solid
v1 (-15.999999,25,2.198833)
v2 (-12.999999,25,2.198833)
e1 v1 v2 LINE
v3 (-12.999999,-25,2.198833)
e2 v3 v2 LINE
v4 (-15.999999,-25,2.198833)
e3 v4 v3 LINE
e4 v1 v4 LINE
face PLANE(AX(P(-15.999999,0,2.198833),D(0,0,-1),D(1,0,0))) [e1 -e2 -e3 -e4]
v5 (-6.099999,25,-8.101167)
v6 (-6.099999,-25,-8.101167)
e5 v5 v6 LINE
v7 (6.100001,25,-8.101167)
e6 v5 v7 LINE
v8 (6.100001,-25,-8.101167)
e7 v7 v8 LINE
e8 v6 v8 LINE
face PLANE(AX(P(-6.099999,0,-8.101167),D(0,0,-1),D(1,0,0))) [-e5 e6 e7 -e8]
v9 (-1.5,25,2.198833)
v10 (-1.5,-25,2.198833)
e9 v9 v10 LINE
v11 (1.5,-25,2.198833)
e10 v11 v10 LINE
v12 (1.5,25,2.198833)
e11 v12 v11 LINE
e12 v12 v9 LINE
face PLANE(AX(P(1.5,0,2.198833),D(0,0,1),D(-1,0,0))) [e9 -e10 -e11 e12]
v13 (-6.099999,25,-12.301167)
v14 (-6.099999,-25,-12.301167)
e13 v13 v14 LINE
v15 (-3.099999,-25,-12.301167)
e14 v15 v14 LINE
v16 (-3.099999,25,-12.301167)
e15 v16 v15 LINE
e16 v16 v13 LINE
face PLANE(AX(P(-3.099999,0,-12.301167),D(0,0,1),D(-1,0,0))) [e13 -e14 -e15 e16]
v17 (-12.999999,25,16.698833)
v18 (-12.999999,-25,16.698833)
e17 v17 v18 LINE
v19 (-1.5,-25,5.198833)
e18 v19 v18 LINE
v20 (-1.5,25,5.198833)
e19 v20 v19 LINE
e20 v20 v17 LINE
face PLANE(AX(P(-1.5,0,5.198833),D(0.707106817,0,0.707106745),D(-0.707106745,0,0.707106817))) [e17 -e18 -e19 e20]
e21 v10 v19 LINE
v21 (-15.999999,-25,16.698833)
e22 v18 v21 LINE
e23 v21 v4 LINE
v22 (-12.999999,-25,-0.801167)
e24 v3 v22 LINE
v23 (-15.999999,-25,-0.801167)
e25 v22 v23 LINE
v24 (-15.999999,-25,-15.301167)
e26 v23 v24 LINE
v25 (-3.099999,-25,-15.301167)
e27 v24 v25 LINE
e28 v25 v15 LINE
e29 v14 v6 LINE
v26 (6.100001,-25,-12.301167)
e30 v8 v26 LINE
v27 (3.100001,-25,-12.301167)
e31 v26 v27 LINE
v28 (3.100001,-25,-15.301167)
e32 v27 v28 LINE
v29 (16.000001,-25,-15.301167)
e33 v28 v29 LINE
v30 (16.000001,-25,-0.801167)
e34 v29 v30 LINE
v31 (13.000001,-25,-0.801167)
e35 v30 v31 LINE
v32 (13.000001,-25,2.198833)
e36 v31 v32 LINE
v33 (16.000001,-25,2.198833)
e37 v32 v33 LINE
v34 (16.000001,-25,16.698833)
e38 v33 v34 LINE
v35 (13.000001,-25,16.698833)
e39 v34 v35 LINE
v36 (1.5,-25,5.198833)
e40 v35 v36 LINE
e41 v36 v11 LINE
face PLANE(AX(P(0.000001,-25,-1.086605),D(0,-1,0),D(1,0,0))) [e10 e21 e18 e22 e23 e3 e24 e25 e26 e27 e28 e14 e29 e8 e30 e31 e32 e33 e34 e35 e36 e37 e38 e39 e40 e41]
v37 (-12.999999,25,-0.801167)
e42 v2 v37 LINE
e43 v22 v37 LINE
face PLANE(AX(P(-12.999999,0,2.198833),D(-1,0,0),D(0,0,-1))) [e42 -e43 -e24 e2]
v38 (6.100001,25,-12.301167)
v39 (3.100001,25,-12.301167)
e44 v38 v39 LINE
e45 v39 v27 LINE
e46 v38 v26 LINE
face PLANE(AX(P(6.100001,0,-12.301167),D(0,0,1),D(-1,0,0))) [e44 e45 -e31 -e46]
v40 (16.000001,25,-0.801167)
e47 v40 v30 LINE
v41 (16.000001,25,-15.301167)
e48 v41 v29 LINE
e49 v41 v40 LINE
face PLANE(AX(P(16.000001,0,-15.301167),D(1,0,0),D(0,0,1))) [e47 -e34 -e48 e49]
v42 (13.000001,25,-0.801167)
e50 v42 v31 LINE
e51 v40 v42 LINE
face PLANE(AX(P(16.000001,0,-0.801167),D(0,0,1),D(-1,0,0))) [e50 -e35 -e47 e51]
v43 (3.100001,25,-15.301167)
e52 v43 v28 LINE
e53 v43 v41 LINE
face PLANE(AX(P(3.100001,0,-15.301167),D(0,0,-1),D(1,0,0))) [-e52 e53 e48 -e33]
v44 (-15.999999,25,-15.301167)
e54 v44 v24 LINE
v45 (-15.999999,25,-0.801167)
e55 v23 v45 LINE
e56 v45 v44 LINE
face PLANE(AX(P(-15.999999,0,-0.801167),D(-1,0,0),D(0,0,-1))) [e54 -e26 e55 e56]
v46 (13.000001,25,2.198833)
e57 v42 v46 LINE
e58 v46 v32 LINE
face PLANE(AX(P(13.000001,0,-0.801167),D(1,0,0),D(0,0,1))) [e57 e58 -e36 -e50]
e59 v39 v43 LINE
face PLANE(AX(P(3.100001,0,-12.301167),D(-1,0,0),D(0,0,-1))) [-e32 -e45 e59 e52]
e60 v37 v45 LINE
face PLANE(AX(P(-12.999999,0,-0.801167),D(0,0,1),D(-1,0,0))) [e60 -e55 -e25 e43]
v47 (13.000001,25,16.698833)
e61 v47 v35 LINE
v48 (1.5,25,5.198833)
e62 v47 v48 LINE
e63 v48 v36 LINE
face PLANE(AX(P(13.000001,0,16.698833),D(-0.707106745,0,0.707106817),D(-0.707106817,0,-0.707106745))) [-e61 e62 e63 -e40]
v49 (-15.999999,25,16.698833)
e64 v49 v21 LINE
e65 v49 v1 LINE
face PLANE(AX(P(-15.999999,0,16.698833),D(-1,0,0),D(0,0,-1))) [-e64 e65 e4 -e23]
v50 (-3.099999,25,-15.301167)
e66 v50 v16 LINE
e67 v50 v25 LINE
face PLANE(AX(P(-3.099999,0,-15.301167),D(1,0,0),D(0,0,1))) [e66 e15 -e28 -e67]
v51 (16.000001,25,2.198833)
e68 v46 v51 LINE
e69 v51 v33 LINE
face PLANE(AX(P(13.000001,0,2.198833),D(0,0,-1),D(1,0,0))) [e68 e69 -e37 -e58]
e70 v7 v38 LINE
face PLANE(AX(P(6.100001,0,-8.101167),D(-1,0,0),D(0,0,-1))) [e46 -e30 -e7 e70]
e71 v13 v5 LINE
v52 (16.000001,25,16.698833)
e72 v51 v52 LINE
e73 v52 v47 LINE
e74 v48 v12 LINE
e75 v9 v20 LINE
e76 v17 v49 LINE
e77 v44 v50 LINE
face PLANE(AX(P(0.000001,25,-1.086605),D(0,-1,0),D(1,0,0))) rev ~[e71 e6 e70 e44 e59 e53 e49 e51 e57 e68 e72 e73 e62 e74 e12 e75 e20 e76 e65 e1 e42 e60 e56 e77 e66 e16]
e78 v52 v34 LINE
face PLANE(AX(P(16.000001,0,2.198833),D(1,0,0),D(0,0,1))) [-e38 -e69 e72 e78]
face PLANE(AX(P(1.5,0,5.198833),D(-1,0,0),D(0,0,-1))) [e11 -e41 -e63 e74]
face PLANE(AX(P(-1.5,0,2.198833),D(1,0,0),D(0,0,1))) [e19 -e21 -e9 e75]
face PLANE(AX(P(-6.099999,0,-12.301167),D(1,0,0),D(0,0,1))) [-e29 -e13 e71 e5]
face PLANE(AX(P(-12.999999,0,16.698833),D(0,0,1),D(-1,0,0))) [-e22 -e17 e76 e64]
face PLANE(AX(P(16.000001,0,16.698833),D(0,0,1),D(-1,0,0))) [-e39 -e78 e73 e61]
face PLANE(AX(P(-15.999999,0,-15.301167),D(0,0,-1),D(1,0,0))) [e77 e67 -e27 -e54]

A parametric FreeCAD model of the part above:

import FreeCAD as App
import Part
import Sketcher
Q = App.Units.Quantity

doc = App.newDocument("Part")
body = doc.addObject("PartDesign::Body", "Body")

# Sketch on XZ plane
sketch1 = body.newObject("Sketcher::SketchObject", "Sketch")
sketch1.AttachmentSupport = (doc.getObject("XZ_Plane"), [""])
sketch1.MapMode = "FlatFace"
sketch1.addGeometry([
    Part.LineSegment(App.Vector(-15.999999, -0.801167, 0), App.Vector(-15.999999, -15.301167, 0)),  # 0
    Part.LineSegment(App.Vector(-15.999999, -15.301167, 0), App.Vector(-3.099999, -15.301167, 0)),  # 1
    Part.LineSegment(App.Vector(-3.099999, -15.301167, 0), App.Vector(-3.099999, -12.301167, 0)),  # 2
    Part.LineSegment(App.Vector(-3.099999, -12.301167, 0), App.Vector(-6.099999, -12.301167, 0)),  # 3
    Part.LineSegment(App.Vector(-6.099999, -12.301167, 0), App.Vector(-6.099999, -8.101167, 0)),  # 4
    Part.LineSegment(App.Vector(-6.099999, -8.101167, 0), App.Vector(6.100001, -8.101167, 0)),  # 5
    Part.LineSegment(App.Vector(6.100001, -8.101167, 0), App.Vector(6.100001, -12.301167, 0)),  # 6
    Part.LineSegment(App.Vector(6.100001, -12.301167, 0), App.Vector(3.100001, -12.301167, 0)),  # 7
    Part.LineSegment(App.Vector(3.100001, -12.301167, 0), App.Vector(3.100001, -15.301167, 0)),  # 8
    Part.LineSegment(App.Vector(3.100001, -15.301167, 0), App.Vector(16.000001, -15.301167, 0)),  # 9
    Part.LineSegment(App.Vector(16.000001, -15.301167, 0), App.Vector(16.000001, -0.801167, 0)),  # 10
    Part.LineSegment(App.Vector(16.000001, -0.801167, 0), App.Vector(13.000001, -0.801167, 0)),  # 11
    Part.LineSegment(App.Vector(13.000001, -0.801167, 0), App.Vector(13.000001, 2.198833, 0)),  # 12
    Part.LineSegment(App.Vector(13.000001, 2.198833, 0), App.Vector(16.000001, 2.198833, 0)),  # 13
    Part.LineSegment(App.Vector(16.000001, 2.198833, 0), App.Vector(16.000001, 16.698833, 0)),  # 14
    Part.LineSegment(App.Vector(16.000001, 16.698833, 0), App.Vector(13.000001, 16.698833, 0)),  # 15
    Part.LineSegment(App.Vector(13.000001, 16.698833, 0), App.Vector(1.5, 5.198833, 0)),  # 16
    Part.LineSegment(App.Vector(1.5, 5.198833, 0), App.Vector(1.5, 2.198833, 0)),  # 17
    Part.LineSegment(App.Vector(1.5, 2.198833, 0), App.Vector(-1.5, 2.198833, 0)),  # 18
    Part.LineSegment(App.Vector(-1.5, 2.198833, 0), App.Vector(-1.5, 5.198833, 0)),  # 19
    Part.LineSegment(App.Vector(-1.5, 5.198833, 0), App.Vector(-12.999999, 16.698833, 0)),  # 20
    Part.LineSegment(App.Vector(-12.999999, 16.698833, 0), App.Vector(-15.999999, 16.698833, 0)),  # 21
    Part.LineSegment(App.Vector(-15.999999, 16.698833, 0), App.Vector(-15.999999, 2.198833, 0)),  # 22
    Part.LineSegment(App.Vector(-15.999999, 2.198833, 0), App.Vector(-12.999999, 2.198833, 0)),  # 23
    Part.LineSegment(App.Vector(-12.999999, 2.198833, 0), App.Vector(-12.999999, -0.801167, 0)),  # 24
    Part.LineSegment(App.Vector(-12.999999, -0.801167, 0), App.Vector(-15.999999, -0.801167, 0)),  # 25
], False)
sketch1.addConstraint([
    Sketcher.Constraint("Coincident", 0, 2, 1, 1),
    Sketcher.Constraint("Coincident", 1, 2, 2, 1),
    Sketcher.Constraint("Coincident", 2, 2, 3, 1),
    Sketcher.Constraint("Coincident", 3, 2, 4, 1),
    Sketcher.Constraint("Coincident", 4, 2, 5, 1),
    Sketcher.Constraint("Coincident", 5, 2, 6, 1),
    Sketcher.Constraint("Coincident", 6, 2, 7, 1),
    Sketcher.Constraint("Coincident", 7, 2, 8, 1),
    Sketcher.Constraint("Coincident", 8, 2, 9, 1),
    Sketcher.Constraint("Coincident", 9, 2, 10, 1),
    Sketcher.Constraint("Coincident", 10, 2, 11, 1),
    Sketcher.Constraint("Coincident", 11, 2, 12, 1),
    Sketcher.Constraint("Coincident", 12, 2, 13, 1),
    Sketcher.Constraint("Coincident", 13, 2, 14, 1),
    Sketcher.Constraint("Coincident", 14, 2, 15, 1),
    Sketcher.Constraint("Coincident", 15, 2, 16, 1),
    Sketcher.Constraint("Coincident", 16, 2, 17, 1),
    Sketcher.Constraint("Coincident", 17, 2, 18, 1),
    Sketcher.Constraint("Coincident", 18, 2, 19, 1),
    Sketcher.Constraint("Coincident", 19, 2, 20, 1),
    Sketcher.Constraint("Coincident", 20, 2, 21, 1),
    Sketcher.Constraint("Coincident", 21, 2, 22, 1),
    Sketcher.Constraint("Coincident", 22, 2, 23, 1),
    Sketcher.Constraint("Coincident", 23, 2, 24, 1),
    Sketcher.Constraint("Coincident", 24, 2, 25, 1),
    Sketcher.Constraint("Coincident", 25, 2, 0, 1),
    Sketcher.Constraint("Vertical", 0),
    Sketcher.Constraint("Horizontal", 1),
    Sketcher.Constraint("Vertical", 2),
    Sketcher.Constraint("Horizontal", 3),
    Sketcher.Constraint("Vertical", 4),
    Sketcher.Constraint("Horizontal", 5),
    Sketcher.Constraint("Vertical", 6),
    Sketcher.Constraint("Horizontal", 7),
    Sketcher.Constraint("Vertical", 8),
    Sketcher.Constraint("Horizontal", 9),
    Sketcher.Constraint("Vertical", 10),
    Sketcher.Constraint("Horizontal", 11),
    Sketcher.Constraint("Vertical", 12),
    Sketcher.Constraint("Horizontal", 13),
    Sketcher.Constraint("Vertical", 14),
    Sketcher.Constraint("Horizontal", 15),
    Sketcher.Constraint("Vertical", 17),
    Sketcher.Constraint("Horizontal", 18),
    Sketcher.Constraint("Vertical", 19),
    Sketcher.Constraint("Horizontal", 21),
    Sketcher.Constraint("Vertical", 22),
    Sketcher.Constraint("Horizontal", 23),
    Sketcher.Constraint("Vertical", 24),
    Sketcher.Constraint("Horizontal", 25),
    Sketcher.Constraint("Symmetric", 3, 2, 6, 2, -2),
    Sketcher.Constraint("Symmetric", 1, 2, 8, 2, -2),
    Sketcher.Constraint("Symmetric", 16, 2, 19, 2, -2),
    Sketcher.Constraint("Symmetric", 15, 2, 20, 2, -2),
    Sketcher.Constraint("Symmetric", 13, 2, 22, 2, -2),
    Sketcher.Constraint("Symmetric", 11, 2, 24, 2, -2),
    Sketcher.Constraint("Perpendicular", 16, 20),
    Sketcher.Constraint("Horizontal", 13, 2, 17, 2),
    Sketcher.Constraint("Vertical", 10, 2, 13, 2),
    Sketcher.Constraint("Vertical", 12, 2, 15, 2),
    Sketcher.Constraint("Vertical", 0, 2, 21, 2),
    Sketcher.Constraint("Equal", 7, 11),
    Sketcher.Constraint("Equal", 15, 18),
    Sketcher.Constraint("Equal", 25, 2),
    Sketcher.Constraint("Equal", 8, 12),
    Sketcher.Constraint("Equal", 10, 14),
    Sketcher.Constraint("Equal", 12, 17),
    Sketcher.Constraint("DistanceX", 3, 2, 3, 1, Q("3 mm")),
    Sketcher.Constraint("DistanceX", 1, 1, 1, 2, Q("12.9 mm")),
    Sketcher.Constraint("DistanceX", 5, 1, 5, 2, Q("12.2 mm")),
    Sketcher.Constraint("DistanceY", 4, 1, 4, 2, Q("4.2 mm")),
    Sketcher.Constraint("DistanceY", 0, 2, -1, 1, Q("15.301167 mm")),
])
pad1 = body.newObject("PartDesign::Pad", "Pad")
pad1.Profile = sketch1
pad1.Length = 50
pad1.Midplane = True

doc.recompute()
